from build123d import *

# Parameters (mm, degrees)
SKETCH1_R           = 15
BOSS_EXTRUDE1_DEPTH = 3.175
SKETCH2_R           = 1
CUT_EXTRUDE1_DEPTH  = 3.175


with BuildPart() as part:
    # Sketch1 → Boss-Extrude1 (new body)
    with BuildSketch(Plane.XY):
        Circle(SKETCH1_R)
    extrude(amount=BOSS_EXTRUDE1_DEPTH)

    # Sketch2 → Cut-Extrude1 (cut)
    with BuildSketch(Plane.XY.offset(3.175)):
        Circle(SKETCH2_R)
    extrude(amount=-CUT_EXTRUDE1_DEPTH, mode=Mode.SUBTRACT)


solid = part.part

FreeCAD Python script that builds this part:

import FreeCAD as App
import Part
import Sketcher

V = App.Vector
Q = App.Units.Quantity

doc = App.newDocument("Part")
body = doc.addObject("PartDesign::Body", "Body")

# Sketch on XY plane
sketch1 = body.newObject("Sketcher::SketchObject", "Sketch")
sketch1.AttachmentSupport = (doc.getObject("XY_Plane"), [""])
sketch1.MapMode = "FlatFace"
sketch1.addGeometry(Part.Circle(V(0, 0, 0), V(0, 0, 1), 15), False)
sketch1.addConstraint(Sketcher.Constraint("Coincident", 0, 3, -1, 1))
sketch1.addConstraint(Sketcher.Constraint("Diameter", 0, Q("30 mm")))
pad1 = body.newObject("PartDesign::Pad", "Pad")
pad1.Profile = sketch1
pad1.Length = 3.175

# Sketch on XY plane
sketch2 = body.newObject("Sketcher::SketchObject", "Sketch001")
sketch2.AttachmentSupport = (doc.getObject("XY_Plane"), [""])
sketch2.MapMode = "FlatFace"
sketch2.AttachmentOffset = App.Placement(V(0, 0, 3.175), App.Rotation())
sketch2.addGeometry(Part.Circle(V(0, 0, 0), V(0, 0, 1), 1), False)
sketch2.addConstraint(Sketcher.Constraint("Coincident", 0, 3, -1, 1))
sketch2.addConstraint(Sketcher.Constraint("Diameter", 0, Q("2 mm")))
pocket1 = body.newObject("PartDesign::Pocket", "Pocket")
pocket1.Profile = sketch2
pocket1.Length = 3.175

doc.recompute()
